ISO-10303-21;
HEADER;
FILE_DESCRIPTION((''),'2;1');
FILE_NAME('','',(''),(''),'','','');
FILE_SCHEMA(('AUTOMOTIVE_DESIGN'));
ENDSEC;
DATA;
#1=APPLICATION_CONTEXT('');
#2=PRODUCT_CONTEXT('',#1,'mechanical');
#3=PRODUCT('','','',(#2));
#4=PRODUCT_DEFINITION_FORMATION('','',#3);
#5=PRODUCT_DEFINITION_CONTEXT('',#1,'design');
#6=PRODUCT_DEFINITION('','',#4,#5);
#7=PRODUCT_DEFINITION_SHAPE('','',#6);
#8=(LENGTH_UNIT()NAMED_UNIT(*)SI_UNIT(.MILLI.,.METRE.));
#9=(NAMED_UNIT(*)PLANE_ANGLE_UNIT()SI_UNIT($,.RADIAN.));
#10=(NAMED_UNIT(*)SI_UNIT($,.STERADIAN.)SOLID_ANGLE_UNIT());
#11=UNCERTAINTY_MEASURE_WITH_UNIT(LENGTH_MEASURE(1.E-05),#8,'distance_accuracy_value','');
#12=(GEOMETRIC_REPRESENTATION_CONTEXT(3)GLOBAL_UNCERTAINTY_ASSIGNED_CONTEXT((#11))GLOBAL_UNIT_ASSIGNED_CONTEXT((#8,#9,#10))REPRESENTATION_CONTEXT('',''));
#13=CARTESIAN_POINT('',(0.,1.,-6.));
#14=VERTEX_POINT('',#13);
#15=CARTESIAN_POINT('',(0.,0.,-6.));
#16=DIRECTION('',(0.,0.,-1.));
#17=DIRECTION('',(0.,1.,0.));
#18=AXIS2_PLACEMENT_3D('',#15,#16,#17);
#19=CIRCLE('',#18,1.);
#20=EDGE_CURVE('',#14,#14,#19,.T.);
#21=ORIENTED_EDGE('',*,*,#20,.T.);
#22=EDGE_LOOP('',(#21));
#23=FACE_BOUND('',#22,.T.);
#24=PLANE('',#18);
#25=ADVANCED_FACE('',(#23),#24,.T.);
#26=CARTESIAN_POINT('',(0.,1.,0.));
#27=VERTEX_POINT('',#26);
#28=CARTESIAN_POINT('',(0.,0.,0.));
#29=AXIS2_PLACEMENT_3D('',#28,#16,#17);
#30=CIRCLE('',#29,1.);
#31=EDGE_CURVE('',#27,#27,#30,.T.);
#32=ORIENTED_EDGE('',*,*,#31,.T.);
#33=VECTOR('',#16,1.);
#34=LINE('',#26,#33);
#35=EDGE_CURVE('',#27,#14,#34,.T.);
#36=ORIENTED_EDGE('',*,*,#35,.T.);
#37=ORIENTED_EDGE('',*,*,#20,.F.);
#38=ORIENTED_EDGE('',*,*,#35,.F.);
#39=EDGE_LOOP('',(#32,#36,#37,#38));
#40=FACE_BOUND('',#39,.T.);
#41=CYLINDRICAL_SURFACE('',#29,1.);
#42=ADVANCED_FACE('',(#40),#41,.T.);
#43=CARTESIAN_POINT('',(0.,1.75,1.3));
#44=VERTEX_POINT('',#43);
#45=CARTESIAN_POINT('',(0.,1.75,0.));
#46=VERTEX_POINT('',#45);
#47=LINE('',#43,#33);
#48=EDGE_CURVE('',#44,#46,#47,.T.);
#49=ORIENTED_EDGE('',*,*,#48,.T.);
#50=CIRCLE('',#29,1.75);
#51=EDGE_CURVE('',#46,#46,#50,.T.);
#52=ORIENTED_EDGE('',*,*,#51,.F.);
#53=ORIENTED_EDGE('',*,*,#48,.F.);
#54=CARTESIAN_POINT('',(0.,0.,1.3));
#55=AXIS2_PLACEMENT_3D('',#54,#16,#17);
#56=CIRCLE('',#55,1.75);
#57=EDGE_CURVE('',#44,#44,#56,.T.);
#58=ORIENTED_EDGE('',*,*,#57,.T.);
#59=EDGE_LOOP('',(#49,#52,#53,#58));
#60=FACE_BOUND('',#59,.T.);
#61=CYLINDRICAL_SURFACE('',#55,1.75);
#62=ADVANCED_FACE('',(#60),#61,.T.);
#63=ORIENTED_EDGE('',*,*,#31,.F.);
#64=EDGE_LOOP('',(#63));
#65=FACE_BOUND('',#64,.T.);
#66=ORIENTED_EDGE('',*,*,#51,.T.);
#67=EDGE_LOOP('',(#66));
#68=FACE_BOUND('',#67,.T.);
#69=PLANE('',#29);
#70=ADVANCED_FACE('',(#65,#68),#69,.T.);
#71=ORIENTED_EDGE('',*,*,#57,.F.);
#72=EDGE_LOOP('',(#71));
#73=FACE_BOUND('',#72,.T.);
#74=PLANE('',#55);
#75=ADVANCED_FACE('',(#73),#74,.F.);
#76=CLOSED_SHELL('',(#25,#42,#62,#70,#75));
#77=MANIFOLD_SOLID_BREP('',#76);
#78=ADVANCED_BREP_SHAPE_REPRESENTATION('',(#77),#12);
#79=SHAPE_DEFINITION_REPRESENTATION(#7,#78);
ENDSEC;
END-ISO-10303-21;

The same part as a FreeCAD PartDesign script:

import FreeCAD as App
import Part
import Sketcher


def add_polygon(sketch, points):
    """Adds a closed chain of lines whose ends are joined by coincident constraints."""
    first, n = sketch.GeometryCount, len(points)
    for a, b in zip(points, points[1:] + points[:1]):
        sketch.addGeometry(Part.LineSegment(App.Vector(*a, 0), App.Vector(*b, 0)), False)
    for i in range(n):
        sketch.addConstraint(Sketcher.Constraint("Coincident", first + i, 2, first + (i + 1) % n, 1))

doc = App.newDocument("Part")
params = doc.addObject("Spreadsheet::Sheet", "Params")
for row, (alias, value) in enumerate([
    ("sketch1_width", "1 mm"),
    ("sketch1_height", "6 mm"),
    ("sketch1_height2", "1.3 mm"),
    ("sketch1_width2", "1.75 mm"),
    ("revolution_angle", "360 deg"),
], start=1):
    params.set(f"A{row}", alias)
    params.set(f"B{row}", "=" + value)
    params.setAlias(f"B{row}", alias)

body = doc.addObject("PartDesign::Body", "Body")

# Sketch on YZ plane
sketch1 = body.newObject("Sketcher::SketchObject", "Sketch")
sketch1.AttachmentSupport = (doc.getObject("YZ_Plane"), [""])
sketch1.MapMode = "FlatFace"
add_polygon(sketch1, [(1.8, 1.3), (0, 1.3), (0, -6), (1, -6), (1, 0), (1.8, 0)])  # lines 0-5
sketch1.addConstraint(Sketcher.Constraint("Horizontal", 0))
sketch1.addConstraint(Sketcher.Constraint("Vertical", 1))
sketch1.addConstraint(Sketcher.Constraint("Horizontal", 2))
sketch1.addConstraint(Sketcher.Constraint("Vertical", 3))
sketch1.addConstraint(Sketcher.Constraint("Horizontal", 4))
sketch1.addConstraint(Sketcher.Constraint("Vertical", 5))
sketch1.addConstraint(Sketcher.Constraint("PointOnObject", 0, 2, -2))
sketch1.addConstraint(Sketcher.Constraint("PointOnObject", 3, 2, -1))
sketch1.addConstraint(Sketcher.Constraint("DistanceX", 2, 1, 2, 2, 1.0))
sketch1.addConstraint(Sketcher.Constraint("DistanceY", 3, 1, 3, 2, 6.0))
sketch1.addConstraint(Sketcher.Constraint("DistanceY", 5, 1, 5, 2, 1.3))
sketch1.addConstraint(Sketcher.Constraint("DistanceX", 0, 2, 0, 1, 1.75))
sketch1.setExpression("Constraints[14]", "Params.sketch1_width")
sketch1.setExpression("Constraints[15]", "Params.sketch1_height")
sketch1.setExpression("Constraints[16]", "Params.sketch1_height2")
sketch1.setExpression("Constraints[17]", "Params.sketch1_width2")
revolution = body.newObject("PartDesign::Revolution", "Revolution")
revolution.Profile = sketch1
revolution.ReferenceAxis = (sketch1, ["V_Axis"])
revolution.setExpression("Angle", "Params.revolution_angle")

doc.recompute()
